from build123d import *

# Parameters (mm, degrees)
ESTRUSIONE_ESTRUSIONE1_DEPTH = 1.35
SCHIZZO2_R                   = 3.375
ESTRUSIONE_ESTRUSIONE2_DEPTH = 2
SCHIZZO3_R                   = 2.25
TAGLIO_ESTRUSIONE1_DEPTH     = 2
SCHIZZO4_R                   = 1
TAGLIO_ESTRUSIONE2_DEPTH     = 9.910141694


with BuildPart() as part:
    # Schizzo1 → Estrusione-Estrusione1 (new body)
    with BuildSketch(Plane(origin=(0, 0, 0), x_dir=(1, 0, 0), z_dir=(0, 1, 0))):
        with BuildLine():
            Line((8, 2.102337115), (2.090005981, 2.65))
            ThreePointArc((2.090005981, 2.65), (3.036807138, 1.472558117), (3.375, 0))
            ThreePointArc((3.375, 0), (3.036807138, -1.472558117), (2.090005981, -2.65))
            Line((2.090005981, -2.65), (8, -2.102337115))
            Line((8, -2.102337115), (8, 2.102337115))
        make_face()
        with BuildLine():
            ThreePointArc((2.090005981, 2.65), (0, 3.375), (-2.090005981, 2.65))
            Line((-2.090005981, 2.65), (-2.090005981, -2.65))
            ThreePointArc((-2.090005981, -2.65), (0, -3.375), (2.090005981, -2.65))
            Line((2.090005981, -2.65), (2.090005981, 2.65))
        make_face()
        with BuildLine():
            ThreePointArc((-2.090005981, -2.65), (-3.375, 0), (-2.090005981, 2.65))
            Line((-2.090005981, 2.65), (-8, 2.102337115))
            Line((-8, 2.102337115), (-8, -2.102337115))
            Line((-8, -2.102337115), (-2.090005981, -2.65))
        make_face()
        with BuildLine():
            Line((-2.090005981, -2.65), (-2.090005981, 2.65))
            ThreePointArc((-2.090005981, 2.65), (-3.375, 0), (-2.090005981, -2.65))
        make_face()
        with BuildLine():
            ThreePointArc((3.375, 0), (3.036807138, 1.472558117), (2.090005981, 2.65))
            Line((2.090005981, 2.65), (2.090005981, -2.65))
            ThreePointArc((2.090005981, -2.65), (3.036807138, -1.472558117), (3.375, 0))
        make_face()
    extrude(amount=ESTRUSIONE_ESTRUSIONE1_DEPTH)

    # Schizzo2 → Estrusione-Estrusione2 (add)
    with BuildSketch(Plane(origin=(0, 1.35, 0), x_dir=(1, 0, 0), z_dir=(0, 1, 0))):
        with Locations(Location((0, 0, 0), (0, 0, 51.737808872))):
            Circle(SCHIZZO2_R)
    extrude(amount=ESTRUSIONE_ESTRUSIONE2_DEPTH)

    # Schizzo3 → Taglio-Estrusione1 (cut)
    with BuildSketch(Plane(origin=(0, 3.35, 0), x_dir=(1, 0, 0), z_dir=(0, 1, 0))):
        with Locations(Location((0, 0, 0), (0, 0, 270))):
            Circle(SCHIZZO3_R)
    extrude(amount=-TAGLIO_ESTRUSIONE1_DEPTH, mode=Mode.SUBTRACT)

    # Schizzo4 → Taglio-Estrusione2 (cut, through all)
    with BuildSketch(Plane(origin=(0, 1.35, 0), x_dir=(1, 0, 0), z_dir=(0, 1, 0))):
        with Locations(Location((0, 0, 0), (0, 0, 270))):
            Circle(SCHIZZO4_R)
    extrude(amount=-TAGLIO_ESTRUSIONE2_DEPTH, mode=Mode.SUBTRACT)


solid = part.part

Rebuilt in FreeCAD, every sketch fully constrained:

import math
import FreeCAD as App
import Part
import Sketcher

doc = App.newDocument("Part")
body = doc.addObject("PartDesign::Body", "Body")

sketch1 = body.newObject("Sketcher::SketchObject", "Sketch")
sketch1.AttachmentSupport = (doc.getObject("XZ_Plane"), [""])
sketch1.MapMode = "FlatFace"
sketch1.addGeometry([
    Part.LineSegment(App.Vector(8, -2.1, 0), App.Vector(2.1, -2.6, 0)),
    Part.ArcOfCircle(Part.Circle(App.Vector(0, 0, 0), App.Vector(0, 0, 1), 3.4), math.radians(-128), math.radians(-52)),
    Part.LineSegment(App.Vector(-2.1, -2.6, 0), App.Vector(-8, -2.1, 0)),
    Part.LineSegment(App.Vector(-8, -2.1, 0), App.Vector(-8, 2.1, 0)),
    Part.LineSegment(App.Vector(-8, 2.1, 0), App.Vector(-2.1, 2.6, 0)),
    Part.ArcOfCircle(Part.Circle(App.Vector(0, 0, 0), App.Vector(0, 0, 1), 3.4), math.radians(52), math.radians(128)),
    Part.LineSegment(App.Vector(2.1, 2.6, 0), App.Vector(8, 2.1, 0)),
    Part.LineSegment(App.Vector(8, 2.1, 0), App.Vector(8, -2.1, 0)),
], False)
sketch1.addConstraint([
    Sketcher.Constraint("Coincident", 0, 2, 1, 2),
    Sketcher.Constraint("Coincident", 1, 1, 2, 1),
    Sketcher.Constraint("Coincident", 2, 2, 3, 1),
    Sketcher.Constraint("Coincident", 3, 2, 4, 1),
    Sketcher.Constraint("Coincident", 4, 2, 5, 2),
    Sketcher.Constraint("Coincident", 5, 1, 6, 1),
    Sketcher.Constraint("Coincident", 6, 2, 7, 1),
    Sketcher.Constraint("Coincident", 7, 2, 0, 1),
    Sketcher.Constraint("Vertical", 3),
    Sketcher.Constraint("Vertical", 7),
    Sketcher.Constraint("Coincident", 1, 3, -1, 1),
    Sketcher.Constraint("Coincident", 5, 3, -1, 1),
    Sketcher.Constraint("Equal", 1, 5),
    Sketcher.Constraint("Symmetric", 2, 2, 6, 2, -1, 1),
    Sketcher.Constraint("Parallel", 0, 4),
    Sketcher.Constraint("Parallel", 2, 6),
    Sketcher.Constraint("Horizontal", 0, 2, 1, 1),
    Sketcher.Constraint("Horizontal", 4, 2, 5, 1),
    Sketcher.Constraint("Horizontal", 3, 2, 6, 2),
    Sketcher.Constraint("DistanceX", 2, 2, -1, 1, 8.0),
    Sketcher.Constraint("Radius", 1, 3.375),
    Sketcher.Constraint("DistanceY", 1, 1, 4, 2, 5.3),
    Sketcher.Constraint("DistanceY", 3, 1, 3, 2, 4.204674),
])
pad1 = body.newObject("PartDesign::Pad", "Pad")
pad1.Profile = sketch1
pad1.Length = 1.35
pad1.Reversed = True

sketch2 = body.newObject("Sketcher::SketchObject", "Sketch001")
sketch2.AttachmentSupport = (doc.getObject("XZ_Plane"), [""])
sketch2.MapMode = "FlatFace"
sketch2.AttachmentOffset = App.Placement(App.Vector(0, 0, -1.35), App.Rotation())
sketch2.addGeometry(Part.Circle(App.Vector(0, 0, 0), App.Vector(0, 0, 1), 3.4), False)
sketch2.addConstraint([
    Sketcher.Constraint("Coincident", 0, 3, -1, 1),
    Sketcher.Constraint("Diameter", 0, 6.75),
])
pad2 = body.newObject("PartDesign::Pad", "Pad001")
pad2.Profile = sketch2
pad2.Length = 2
pad2.Reversed = True

sketch3 = body.newObject("Sketcher::SketchObject", "Sketch002")
sketch3.AttachmentSupport = (doc.getObject("XZ_Plane"), [""])
sketch3.MapMode = "FlatFace"
sketch3.AttachmentOffset = App.Placement(App.Vector(0, 0, -3.35), App.Rotation())
sketch3.addGeometry(Part.Circle(App.Vector(0, 0, 0), App.Vector(0, 0, 1), 2.2), False)
sketch3.addConstraint([
    Sketcher.Constraint("Coincident", 0, 3, -1, 1),
    Sketcher.Constraint("Diameter", 0, 4.5),
])
pocket1 = body.newObject("PartDesign::Pocket", "Pocket")
pocket1.Profile = sketch3
pocket1.Length = 2
pocket1.Reversed = True

sketch4 = body.newObject("Sketcher::SketchObject", "Sketch003")
sketch4.AttachmentSupport = (doc.getObject("XZ_Plane"), [""])
sketch4.MapMode = "FlatFace"
sketch4.AttachmentOffset = App.Placement(App.Vector(0, 0, -1.35), App.Rotation())
sketch4.addGeometry(Part.Circle(App.Vector(0, 0, 0), App.Vector(0, 0, 1), 1), False)
sketch4.addConstraint([
    Sketcher.Constraint("Coincident", 0, 3, -1, 1),
    Sketcher.Constraint("Diameter", 0, 2.0),
])
pocket2 = body.newObject("PartDesign::Pocket", "Pocket001")
pocket2.Profile = sketch4
pocket2.Type = "ThroughAll"
pocket2.Reversed = True

doc.recompute()
